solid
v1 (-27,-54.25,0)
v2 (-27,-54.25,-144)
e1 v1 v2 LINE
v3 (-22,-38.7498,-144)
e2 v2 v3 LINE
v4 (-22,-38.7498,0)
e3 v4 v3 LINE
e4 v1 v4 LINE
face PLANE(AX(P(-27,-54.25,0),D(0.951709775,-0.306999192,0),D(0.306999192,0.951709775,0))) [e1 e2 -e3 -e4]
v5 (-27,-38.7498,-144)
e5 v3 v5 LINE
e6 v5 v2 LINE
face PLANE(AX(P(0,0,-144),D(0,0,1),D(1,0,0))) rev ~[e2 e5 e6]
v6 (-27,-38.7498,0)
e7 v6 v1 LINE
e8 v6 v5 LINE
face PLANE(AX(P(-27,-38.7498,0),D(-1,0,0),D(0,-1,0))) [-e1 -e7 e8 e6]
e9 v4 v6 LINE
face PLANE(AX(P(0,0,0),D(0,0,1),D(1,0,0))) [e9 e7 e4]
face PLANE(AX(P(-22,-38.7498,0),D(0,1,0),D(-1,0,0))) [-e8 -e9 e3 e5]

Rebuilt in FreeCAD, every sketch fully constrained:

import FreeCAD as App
import Part
import Sketcher
Q = App.Units.Quantity

doc = App.newDocument("Part")
body = doc.addObject("PartDesign::Body", "Body")

sketch1 = doc.addObject("Sketcher::SketchObject", "Sketch")
body.addObject(sketch1)
sketch1.AttachmentSupport = (doc.XY_Plane, [""])
sketch1.MapMode = "FlatFace"
sketch1.addGeometry([
    Part.LineSegment(App.Vector(-27, -39, 0), App.Vector(-27, -54, 0)),
    Part.LineSegment(App.Vector(-27, -54, 0), App.Vector(-22, -39, 0)),
    Part.LineSegment(App.Vector(-22, -39, 0), App.Vector(-27, -39, 0)),
], False)
sketch1.addConstraint([
    Sketcher.Constraint("Coincident", 0, 2, 1, 1),
    Sketcher.Constraint("Coincident", 1, 2, 2, 1),
    Sketcher.Constraint("Coincident", 2, 2, 0, 1),
    Sketcher.Constraint("Vertical", 0),
    Sketcher.Constraint("Horizontal", 2),
    Sketcher.Constraint("DistanceX", 2, 2, 2, 1, Q("5 mm")),
    Sketcher.Constraint("DistanceX", 0, 2, -1, 1, Q("27 mm")),
    Sketcher.Constraint("DistanceY", 0, 2, -1, 1, Q("54.25 mm")),
    Sketcher.Constraint("DistanceY", 0, 2, 0, 1, Q("15.5002 mm")),
])
pad1 = doc.addObject("PartDesign::Pad", "Pad")
body.addObject(pad1)
pad1.Profile = sketch1
pad1.Length = 144
pad1.Reversed = True

doc.recompute()
